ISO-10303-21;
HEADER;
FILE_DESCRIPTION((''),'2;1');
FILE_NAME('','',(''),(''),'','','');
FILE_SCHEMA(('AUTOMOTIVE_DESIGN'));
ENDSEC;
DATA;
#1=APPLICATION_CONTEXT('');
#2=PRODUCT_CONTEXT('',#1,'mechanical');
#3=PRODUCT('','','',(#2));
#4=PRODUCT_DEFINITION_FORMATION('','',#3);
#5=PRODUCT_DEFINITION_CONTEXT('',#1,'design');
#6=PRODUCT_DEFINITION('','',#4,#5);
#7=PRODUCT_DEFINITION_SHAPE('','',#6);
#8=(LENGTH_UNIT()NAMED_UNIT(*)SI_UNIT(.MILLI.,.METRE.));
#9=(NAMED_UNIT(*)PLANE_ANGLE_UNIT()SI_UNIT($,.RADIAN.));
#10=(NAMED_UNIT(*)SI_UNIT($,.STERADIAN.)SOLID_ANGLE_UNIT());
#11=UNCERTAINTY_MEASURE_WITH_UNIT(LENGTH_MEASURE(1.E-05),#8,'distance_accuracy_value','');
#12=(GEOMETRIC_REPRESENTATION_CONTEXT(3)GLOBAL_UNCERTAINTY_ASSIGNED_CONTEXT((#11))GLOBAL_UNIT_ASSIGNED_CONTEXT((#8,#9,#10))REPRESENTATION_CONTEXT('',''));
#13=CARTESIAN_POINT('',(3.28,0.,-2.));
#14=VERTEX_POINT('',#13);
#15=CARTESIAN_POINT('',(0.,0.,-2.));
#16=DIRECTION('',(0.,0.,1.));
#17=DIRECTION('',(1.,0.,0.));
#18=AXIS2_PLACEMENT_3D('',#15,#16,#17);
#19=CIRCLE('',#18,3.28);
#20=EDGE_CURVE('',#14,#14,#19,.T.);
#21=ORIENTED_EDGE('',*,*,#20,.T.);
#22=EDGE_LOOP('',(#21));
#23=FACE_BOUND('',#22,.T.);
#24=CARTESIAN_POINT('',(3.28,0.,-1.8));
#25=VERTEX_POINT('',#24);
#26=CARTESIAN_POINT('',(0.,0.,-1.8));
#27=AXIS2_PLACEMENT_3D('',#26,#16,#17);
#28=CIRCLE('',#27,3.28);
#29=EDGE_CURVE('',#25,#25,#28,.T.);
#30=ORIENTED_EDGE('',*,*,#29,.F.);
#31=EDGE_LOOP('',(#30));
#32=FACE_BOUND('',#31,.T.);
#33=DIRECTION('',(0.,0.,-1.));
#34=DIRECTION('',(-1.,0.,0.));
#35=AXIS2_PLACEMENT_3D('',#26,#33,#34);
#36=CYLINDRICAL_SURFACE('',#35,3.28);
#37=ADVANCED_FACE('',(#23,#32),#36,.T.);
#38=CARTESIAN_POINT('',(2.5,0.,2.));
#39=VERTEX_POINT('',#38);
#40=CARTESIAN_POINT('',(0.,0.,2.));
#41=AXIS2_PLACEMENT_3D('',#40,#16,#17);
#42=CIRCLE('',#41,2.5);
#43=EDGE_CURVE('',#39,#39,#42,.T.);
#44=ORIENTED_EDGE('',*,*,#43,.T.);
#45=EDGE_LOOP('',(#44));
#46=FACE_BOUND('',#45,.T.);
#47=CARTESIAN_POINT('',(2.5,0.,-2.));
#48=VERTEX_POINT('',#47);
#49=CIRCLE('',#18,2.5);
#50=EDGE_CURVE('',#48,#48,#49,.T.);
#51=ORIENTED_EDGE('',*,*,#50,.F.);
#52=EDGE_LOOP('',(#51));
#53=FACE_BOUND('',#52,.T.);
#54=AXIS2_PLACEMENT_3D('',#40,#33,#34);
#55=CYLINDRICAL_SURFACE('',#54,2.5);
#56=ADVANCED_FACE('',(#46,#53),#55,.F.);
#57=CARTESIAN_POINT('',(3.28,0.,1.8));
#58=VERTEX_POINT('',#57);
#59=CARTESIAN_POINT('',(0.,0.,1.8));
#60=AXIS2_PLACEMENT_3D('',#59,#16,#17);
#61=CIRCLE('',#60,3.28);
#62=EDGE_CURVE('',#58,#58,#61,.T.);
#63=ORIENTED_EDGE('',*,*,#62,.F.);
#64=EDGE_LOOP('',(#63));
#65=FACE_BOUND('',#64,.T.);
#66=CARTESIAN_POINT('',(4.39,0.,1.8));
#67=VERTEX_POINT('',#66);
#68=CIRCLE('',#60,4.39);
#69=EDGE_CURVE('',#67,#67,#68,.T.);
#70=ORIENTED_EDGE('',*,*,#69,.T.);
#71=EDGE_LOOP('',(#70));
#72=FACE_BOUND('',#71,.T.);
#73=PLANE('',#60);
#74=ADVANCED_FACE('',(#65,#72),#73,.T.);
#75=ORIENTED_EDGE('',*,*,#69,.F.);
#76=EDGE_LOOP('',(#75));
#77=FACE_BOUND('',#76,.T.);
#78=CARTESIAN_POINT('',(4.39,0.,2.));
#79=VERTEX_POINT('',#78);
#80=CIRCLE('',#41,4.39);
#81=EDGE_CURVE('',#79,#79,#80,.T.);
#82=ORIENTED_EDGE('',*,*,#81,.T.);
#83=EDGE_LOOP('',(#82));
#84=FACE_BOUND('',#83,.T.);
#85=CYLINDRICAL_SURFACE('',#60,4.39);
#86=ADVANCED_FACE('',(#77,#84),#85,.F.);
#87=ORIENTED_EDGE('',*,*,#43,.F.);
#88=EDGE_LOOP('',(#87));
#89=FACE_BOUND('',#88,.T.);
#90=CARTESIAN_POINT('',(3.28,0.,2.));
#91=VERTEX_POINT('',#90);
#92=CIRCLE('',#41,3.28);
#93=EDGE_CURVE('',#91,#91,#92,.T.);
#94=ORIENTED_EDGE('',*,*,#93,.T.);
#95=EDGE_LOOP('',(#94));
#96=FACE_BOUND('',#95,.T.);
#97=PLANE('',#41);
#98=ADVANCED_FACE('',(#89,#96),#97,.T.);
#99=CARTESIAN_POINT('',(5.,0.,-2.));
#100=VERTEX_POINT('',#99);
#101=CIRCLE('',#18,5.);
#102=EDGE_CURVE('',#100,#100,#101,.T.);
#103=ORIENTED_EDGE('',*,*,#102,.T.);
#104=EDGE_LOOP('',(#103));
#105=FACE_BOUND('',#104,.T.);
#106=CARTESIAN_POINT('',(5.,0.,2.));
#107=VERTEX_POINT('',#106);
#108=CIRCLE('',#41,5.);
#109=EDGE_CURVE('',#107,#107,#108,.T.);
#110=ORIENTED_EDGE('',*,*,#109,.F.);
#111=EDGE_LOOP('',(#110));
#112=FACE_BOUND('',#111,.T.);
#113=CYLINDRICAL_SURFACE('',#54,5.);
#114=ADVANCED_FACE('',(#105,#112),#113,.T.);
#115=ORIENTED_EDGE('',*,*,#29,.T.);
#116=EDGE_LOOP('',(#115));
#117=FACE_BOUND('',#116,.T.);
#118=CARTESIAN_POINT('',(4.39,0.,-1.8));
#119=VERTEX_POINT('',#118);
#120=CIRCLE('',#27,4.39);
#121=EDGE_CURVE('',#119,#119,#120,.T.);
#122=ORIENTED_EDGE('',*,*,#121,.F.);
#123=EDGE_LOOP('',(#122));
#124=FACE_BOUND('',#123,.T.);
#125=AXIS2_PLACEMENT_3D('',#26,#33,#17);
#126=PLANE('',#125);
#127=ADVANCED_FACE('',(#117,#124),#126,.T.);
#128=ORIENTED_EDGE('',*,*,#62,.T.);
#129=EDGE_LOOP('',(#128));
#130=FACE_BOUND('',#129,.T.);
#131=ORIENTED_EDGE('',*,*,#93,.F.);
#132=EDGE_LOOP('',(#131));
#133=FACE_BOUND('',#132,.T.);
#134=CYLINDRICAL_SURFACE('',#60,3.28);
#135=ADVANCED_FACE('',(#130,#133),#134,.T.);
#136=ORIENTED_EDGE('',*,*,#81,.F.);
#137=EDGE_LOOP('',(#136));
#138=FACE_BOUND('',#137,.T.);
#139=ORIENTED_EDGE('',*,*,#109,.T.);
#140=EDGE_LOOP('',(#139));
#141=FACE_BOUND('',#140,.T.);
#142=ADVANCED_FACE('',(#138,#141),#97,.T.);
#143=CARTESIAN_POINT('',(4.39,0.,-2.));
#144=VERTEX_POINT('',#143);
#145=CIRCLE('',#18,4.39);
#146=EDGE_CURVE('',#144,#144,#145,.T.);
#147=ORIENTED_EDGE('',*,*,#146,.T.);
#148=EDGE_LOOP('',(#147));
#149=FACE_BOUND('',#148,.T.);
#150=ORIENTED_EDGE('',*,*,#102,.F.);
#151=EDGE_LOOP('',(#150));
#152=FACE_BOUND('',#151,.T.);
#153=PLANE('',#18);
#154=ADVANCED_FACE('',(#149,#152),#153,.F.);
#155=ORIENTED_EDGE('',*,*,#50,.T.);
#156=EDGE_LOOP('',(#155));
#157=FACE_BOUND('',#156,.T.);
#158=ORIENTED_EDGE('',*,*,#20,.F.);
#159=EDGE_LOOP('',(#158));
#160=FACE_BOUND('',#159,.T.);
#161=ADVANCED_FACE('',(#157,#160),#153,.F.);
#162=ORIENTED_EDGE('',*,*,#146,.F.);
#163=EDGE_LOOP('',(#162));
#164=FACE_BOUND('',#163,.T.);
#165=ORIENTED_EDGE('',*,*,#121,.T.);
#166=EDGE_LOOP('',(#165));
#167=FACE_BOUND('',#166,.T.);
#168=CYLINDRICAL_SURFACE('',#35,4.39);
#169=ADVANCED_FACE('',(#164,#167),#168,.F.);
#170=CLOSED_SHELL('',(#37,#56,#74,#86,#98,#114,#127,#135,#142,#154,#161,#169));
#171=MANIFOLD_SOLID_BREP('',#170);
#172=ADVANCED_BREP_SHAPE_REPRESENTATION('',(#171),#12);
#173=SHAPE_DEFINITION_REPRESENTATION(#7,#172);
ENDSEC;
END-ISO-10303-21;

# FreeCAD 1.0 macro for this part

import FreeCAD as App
import Part
import Sketcher
Q = App.Units.Quantity

doc = App.newDocument("Part")
body = doc.addObject("PartDesign::Body", "Body")

# Sketch on XY plane
sketch1 = body.newObject("Sketcher::SketchObject", "Sketch")
sketch1.AttachmentSupport = (doc.getObject("XY_Plane"), [""])
sketch1.MapMode = "FlatFace"
sketch1.addGeometry([
    Part.Circle(App.Vector(0, 0, 0), App.Vector(0, 0, 1), 5),
    Part.Circle(App.Vector(0, 0, 0), App.Vector(0, 0, 1), 2.5),
], False)
sketch1.addConstraint([
    Sketcher.Constraint("Coincident", 0, 3, -1, 1),
    Sketcher.Constraint("Coincident", 1, 3, -1, 1),
    Sketcher.Constraint("Diameter", 0, Q("10 mm")),
    Sketcher.Constraint("Diameter", 1, Q("5 mm")),
])
pad1 = body.newObject("PartDesign::Pad", "Pad")
pad1.Profile = sketch1
pad1.Length = 4
pad1.Midplane = True

# Sketch on XY plane
sketch2 = body.newObject("Sketcher::SketchObject", "Sketch001")
sketch2.AttachmentSupport = (doc.getObject("XY_Plane"), [""])
sketch2.MapMode = "FlatFace"
sketch2.AttachmentOffset = App.Placement(App.Vector(0, 0, 2), App.Rotation())
sketch2.addGeometry([
    Part.Circle(App.Vector(0, 0, 0), App.Vector(0, 0, 1), 4.4),
    Part.Circle(App.Vector(0, 0, 0), App.Vector(0, 0, 1), 3.3),
], False)
sketch2.addConstraint([
    Sketcher.Constraint("Coincident", 0, 3, -1, 1),
    Sketcher.Constraint("Coincident", 1, 3, -1, 1),
    Sketcher.Constraint("Diameter", 0, Q("8.78 mm")),
    Sketcher.Constraint("Diameter", 1, Q("6.56 mm")),
])
pocket1 = body.newObject("PartDesign::Pocket", "Pocket")
pocket1.Profile = sketch2
pocket1.Length = 0.2
doc.recompute()

mirrored = body.newObject("PartDesign::Mirrored", "Mirrored")
mirrored.Originals = [pocket1]
mirrored.MirrorPlane = (doc.getObject("XY_Plane"), [""])
body.Tip = mirrored

doc.recompute()
